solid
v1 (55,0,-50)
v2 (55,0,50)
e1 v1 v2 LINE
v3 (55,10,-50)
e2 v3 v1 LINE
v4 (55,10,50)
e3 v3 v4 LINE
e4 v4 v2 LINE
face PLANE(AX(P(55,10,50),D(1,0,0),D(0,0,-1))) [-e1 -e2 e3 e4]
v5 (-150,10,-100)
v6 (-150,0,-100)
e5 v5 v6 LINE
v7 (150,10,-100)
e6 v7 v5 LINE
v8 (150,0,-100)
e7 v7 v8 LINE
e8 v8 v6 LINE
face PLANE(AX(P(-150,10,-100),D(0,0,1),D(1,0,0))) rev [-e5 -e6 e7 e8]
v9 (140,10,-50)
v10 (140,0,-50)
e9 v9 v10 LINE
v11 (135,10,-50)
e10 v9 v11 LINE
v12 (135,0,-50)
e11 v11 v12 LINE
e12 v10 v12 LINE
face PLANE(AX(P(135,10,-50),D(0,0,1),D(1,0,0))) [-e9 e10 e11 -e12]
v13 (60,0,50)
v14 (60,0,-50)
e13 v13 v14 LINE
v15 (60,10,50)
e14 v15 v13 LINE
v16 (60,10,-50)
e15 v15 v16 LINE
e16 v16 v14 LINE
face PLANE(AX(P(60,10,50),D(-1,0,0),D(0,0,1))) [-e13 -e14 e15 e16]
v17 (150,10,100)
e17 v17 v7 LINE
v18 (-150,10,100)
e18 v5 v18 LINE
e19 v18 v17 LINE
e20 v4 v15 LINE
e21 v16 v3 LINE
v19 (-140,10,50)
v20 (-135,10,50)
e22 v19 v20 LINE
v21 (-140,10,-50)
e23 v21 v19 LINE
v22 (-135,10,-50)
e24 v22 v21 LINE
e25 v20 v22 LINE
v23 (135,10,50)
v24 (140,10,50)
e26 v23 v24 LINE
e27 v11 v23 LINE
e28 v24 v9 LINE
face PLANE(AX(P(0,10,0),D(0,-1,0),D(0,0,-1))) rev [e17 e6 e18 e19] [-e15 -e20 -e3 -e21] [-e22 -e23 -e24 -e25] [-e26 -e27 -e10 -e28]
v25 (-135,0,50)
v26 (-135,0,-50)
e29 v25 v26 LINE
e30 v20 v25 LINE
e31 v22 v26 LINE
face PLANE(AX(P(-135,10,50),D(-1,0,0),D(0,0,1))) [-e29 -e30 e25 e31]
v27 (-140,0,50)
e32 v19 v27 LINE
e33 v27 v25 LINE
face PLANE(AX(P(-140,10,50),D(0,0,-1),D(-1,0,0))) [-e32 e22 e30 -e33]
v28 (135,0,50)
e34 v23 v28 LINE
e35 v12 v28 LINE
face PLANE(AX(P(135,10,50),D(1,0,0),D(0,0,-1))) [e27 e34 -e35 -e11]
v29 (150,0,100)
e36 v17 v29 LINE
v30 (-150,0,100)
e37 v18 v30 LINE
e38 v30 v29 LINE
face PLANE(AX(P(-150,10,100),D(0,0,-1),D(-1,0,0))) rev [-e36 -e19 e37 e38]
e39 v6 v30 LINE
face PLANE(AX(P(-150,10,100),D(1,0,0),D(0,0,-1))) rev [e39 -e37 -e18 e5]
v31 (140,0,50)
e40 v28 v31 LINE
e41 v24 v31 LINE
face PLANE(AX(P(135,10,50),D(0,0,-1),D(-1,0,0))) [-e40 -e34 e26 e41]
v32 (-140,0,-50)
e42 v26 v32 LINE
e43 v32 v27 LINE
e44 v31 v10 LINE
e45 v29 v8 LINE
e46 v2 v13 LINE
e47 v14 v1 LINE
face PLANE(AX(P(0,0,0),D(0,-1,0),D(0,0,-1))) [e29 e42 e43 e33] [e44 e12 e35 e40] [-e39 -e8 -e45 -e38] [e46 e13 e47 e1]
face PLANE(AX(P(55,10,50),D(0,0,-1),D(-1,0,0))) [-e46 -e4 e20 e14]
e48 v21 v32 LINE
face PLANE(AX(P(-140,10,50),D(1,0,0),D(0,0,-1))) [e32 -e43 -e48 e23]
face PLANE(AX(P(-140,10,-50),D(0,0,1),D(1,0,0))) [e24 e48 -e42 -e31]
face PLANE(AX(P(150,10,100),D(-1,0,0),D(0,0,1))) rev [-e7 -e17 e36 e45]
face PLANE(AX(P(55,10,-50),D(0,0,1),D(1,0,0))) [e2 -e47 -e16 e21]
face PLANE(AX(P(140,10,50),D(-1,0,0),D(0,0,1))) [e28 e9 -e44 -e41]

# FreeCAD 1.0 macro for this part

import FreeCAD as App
import Part
import Sketcher

V = App.Vector
Q = App.Units.Quantity

doc = App.newDocument("Part")
body = doc.addObject("PartDesign::Body", "Body")

# Sketch on XZ plane
sketch1 = body.newObject("Sketcher::SketchObject", "Sketch")
sketch1.AttachmentSupport = (doc.getObject("XZ_Plane"), [""])
sketch1.MapMode = "FlatFace"
sketch1.addGeometry([
    Part.LineSegment(V(-150, -100, 0), V(-150, 100, 0)),  # 0
    Part.LineSegment(V(-150, 100, 0), V(150, 100, 0)),  # 1
    Part.LineSegment(V(150, 100, 0), V(150, -100, 0)),  # 2
    Part.LineSegment(V(150, -100, 0), V(-150, -100, 0)),  # 3
    Part.LineSegment(V(-135, 50, 0), V(-140, 50, 0)),  # 4
    Part.LineSegment(V(-140, 50, 0), V(-140, -50, 0)),  # 5
    Part.LineSegment(V(-140, -50, 0), V(-135, -50, 0)),  # 6
    Part.LineSegment(V(-135, -50, 0), V(-135, 50, 0)),  # 7
    Part.LineSegment(V(60, 50, 0), V(55, 50, 0)),  # 8
    Part.LineSegment(V(55, 50, 0), V(55, -50, 0)),  # 9
    Part.LineSegment(V(55, -50, 0), V(60, -50, 0)),  # 10
    Part.LineSegment(V(60, -50, 0), V(60, 50, 0)),  # 11
    Part.LineSegment(V(140, 50, 0), V(135, 50, 0)),  # 12
    Part.LineSegment(V(135, 50, 0), V(135, -50, 0)),  # 13
    Part.LineSegment(V(135, -50, 0), V(140, -50, 0)),  # 14
    Part.LineSegment(V(140, -50, 0), V(140, 50, 0)),  # 15
], False)
sketch1.addConstraint([
    Sketcher.Constraint("Coincident", 0, 2, 1, 1),
    Sketcher.Constraint("Coincident", 1, 2, 2, 1),
    Sketcher.Constraint("Coincident", 2, 2, 3, 1),
    Sketcher.Constraint("Coincident", 3, 2, 0, 1),
    Sketcher.Constraint("Coincident", 4, 2, 5, 1),
    Sketcher.Constraint("Coincident", 5, 2, 6, 1),
    Sketcher.Constraint("Coincident", 6, 2, 7, 1),
    Sketcher.Constraint("Coincident", 7, 2, 4, 1),
    Sketcher.Constraint("Coincident", 8, 2, 9, 1),
    Sketcher.Constraint("Coincident", 9, 2, 10, 1),
    Sketcher.Constraint("Coincident", 10, 2, 11, 1),
    Sketcher.Constraint("Coincident", 11, 2, 8, 1),
    Sketcher.Constraint("Coincident", 12, 2, 13, 1),
    Sketcher.Constraint("Coincident", 13, 2, 14, 1),
    Sketcher.Constraint("Coincident", 14, 2, 15, 1),
    Sketcher.Constraint("Coincident", 15, 2, 12, 1),
    Sketcher.Constraint("Vertical", 0),
    Sketcher.Constraint("Horizontal", 1),
    Sketcher.Constraint("Vertical", 2),
    Sketcher.Constraint("Horizontal", 3),
    Sketcher.Constraint("Horizontal", 4),
    Sketcher.Constraint("Vertical", 5),
    Sketcher.Constraint("Horizontal", 6),
    Sketcher.Constraint("Vertical", 7),
    Sketcher.Constraint("Horizontal", 8),
    Sketcher.Constraint("Vertical", 9),
    Sketcher.Constraint("Horizontal", 10),
    Sketcher.Constraint("Vertical", 11),
    Sketcher.Constraint("Horizontal", 12),
    Sketcher.Constraint("Vertical", 13),
    Sketcher.Constraint("Horizontal", 14),
    Sketcher.Constraint("Vertical", 15),
    Sketcher.Constraint("Symmetric", 0, 2, 2, 2, -1, 1),
    Sketcher.Constraint("Symmetric", 6, 2, 12, 2, -1, 1),
    Sketcher.Constraint("Symmetric", 4, 2, 14, 2, -1, 1),
    Sketcher.Constraint("Horizontal", 7, 2, 8, 2),
    Sketcher.Constraint("Horizontal", 6, 2, 9, 2),
    Sketcher.Constraint("Horizontal", 11, 2, 12, 2),
    Sketcher.Constraint("Equal", 6, 8),
    Sketcher.Constraint("DistanceX", 1, 1, 1, 2, Q("300 mm")),
    Sketcher.Constraint("DistanceX", 4, 2, 4, 1, Q("5 mm")),
    Sketcher.Constraint("DistanceY", 0, 1, 0, 2, Q("200 mm")),
    Sketcher.Constraint("DistanceY", 5, 2, 5, 1, Q("100 mm")),
    Sketcher.Constraint("DistanceX", 4, 2, -1, 1, Q("140 mm")),
    Sketcher.Constraint("DistanceX", -1, 1, 8, 2, Q("55 mm")),
])
pad1 = body.newObject("PartDesign::Pad", "Pad")
pad1.Profile = sketch1
pad1.Length = 10
pad1.Reversed = True

doc.recompute()
